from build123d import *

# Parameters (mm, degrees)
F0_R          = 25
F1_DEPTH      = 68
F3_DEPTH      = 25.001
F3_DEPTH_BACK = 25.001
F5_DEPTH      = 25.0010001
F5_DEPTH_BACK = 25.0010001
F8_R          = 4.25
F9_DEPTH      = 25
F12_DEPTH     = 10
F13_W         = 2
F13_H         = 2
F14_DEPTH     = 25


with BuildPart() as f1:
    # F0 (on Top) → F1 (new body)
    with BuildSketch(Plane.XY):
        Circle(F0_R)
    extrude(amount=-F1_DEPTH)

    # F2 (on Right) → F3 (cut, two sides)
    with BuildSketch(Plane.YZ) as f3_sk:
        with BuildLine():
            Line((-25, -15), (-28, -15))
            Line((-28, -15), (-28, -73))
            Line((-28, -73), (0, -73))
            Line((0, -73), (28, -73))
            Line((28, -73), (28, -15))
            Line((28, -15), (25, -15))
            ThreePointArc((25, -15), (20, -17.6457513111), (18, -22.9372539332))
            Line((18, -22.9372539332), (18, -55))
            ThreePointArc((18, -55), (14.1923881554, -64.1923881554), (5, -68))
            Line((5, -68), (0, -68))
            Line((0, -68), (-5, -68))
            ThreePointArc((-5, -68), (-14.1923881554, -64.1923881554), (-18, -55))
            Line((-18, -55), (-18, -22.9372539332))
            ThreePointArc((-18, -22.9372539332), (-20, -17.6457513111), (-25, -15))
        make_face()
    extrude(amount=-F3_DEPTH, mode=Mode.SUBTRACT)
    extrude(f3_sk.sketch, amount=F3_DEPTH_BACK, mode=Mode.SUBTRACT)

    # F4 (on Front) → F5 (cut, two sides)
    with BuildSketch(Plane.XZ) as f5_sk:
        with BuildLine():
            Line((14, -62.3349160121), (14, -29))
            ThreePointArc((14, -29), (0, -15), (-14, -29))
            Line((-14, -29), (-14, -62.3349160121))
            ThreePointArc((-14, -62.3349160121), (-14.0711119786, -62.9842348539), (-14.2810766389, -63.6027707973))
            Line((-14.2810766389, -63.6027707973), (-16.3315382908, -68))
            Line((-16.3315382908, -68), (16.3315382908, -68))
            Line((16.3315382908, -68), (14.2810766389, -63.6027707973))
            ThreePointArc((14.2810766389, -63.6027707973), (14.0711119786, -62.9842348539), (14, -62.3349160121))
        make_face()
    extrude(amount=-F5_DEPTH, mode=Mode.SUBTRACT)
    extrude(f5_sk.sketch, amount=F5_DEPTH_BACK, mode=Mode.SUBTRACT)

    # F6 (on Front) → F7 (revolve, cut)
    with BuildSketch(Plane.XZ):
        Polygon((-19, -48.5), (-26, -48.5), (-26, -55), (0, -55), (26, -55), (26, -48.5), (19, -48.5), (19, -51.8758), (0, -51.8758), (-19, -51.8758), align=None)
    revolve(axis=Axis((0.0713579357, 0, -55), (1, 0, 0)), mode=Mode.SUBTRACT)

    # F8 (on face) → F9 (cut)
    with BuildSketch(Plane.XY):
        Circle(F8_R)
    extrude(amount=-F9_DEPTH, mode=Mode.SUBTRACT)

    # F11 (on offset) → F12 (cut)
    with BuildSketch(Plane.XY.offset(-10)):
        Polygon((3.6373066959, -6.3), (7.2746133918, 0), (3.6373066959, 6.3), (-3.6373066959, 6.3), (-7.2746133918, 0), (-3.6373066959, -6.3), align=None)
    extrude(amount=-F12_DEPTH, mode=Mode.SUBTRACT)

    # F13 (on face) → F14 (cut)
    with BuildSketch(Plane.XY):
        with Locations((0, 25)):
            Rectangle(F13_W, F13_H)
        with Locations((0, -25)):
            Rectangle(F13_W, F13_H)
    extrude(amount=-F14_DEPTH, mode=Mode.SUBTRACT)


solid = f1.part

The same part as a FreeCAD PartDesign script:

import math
import FreeCAD as App
import Part
import Sketcher
from FreeCAD import Vector
Q = App.Units.Quantity


def add_polygon(sketch, points):
    """Adds a closed chain of lines whose ends are joined by coincident constraints."""
    first, n = sketch.GeometryCount, len(points)
    for a, b in zip(points, points[1:] + points[:1]):
        sketch.addGeometry(Part.LineSegment(App.Vector(*a, 0), App.Vector(*b, 0)), False)
    for i in range(n):
        sketch.addConstraint(Sketcher.Constraint("Coincident", first + i, 2, first + (i + 1) % n, 1))

doc = App.newDocument("Part")
body = doc.addObject("PartDesign::Body", "Body")

sketch1 = doc.addObject("Sketcher::SketchObject", "Sketch")
body.addObject(sketch1)
sketch1.AttachmentSupport = (doc.XY_Plane, [""])
sketch1.MapMode = "FlatFace"
sketch1.addGeometry(Part.Circle(Vector(0, 0, 0), Vector(0, 0, 1), 25), False)
sketch1.addConstraint([
    Sketcher.Constraint("Coincident", 0, 3, -1, 1),
    Sketcher.Constraint("Diameter", 0, 50.0),
])
pad1 = doc.addObject("PartDesign::Pad", "Pad")
body.addObject(pad1)
pad1.Profile = sketch1
pad1.Length = 68
pad1.Reversed = True

sketch2 = doc.addObject("Sketcher::SketchObject", "Sketch001")
body.addObject(sketch2)
sketch2.AttachmentSupport = (doc.YZ_Plane, [""])
sketch2.MapMode = "FlatFace"
sketch2.addGeometry([
    Part.LineSegment(Vector(-25, -15, 0), Vector(-28, -15, 0)),
    Part.LineSegment(Vector(-28, -15, 0), Vector(-28, -73, 0)),
    Part.LineSegment(Vector(-28, -73, 0), Vector(28, -73, 0)),
    Part.LineSegment(Vector(28, -73, 0), Vector(28, -15, 0)),
    Part.LineSegment(Vector(28, -15, 0), Vector(25, -15, 0)),
    Part.ArcOfCircle(Part.Circle(Vector(26, -22.9, 0), Vector(0, 0, 1), 8), math.radians(97), math.radians(180)),
    Part.LineSegment(Vector(18, -22.9, 0), Vector(18, -55, 0)),
    Part.ArcOfCircle(Part.Circle(Vector(5, -55, 0), Vector(0, 0, 1), 13), math.radians(-90), math.radians(0)),
    Part.LineSegment(Vector(5, -68, 0), Vector(-5, -68, 0)),
    Part.ArcOfCircle(Part.Circle(Vector(-5, -55, 0), Vector(0, 0, 1), 13), math.radians(180), math.radians(270)),
    Part.LineSegment(Vector(-18, -55, 0), Vector(-18, -22.9, 0)),
    Part.ArcOfCircle(Part.Circle(Vector(-26, -22.9, 0), Vector(0, 0, 1), 8), math.radians(0), math.radians(83)),
], False)
sketch2.addConstraint([
    Sketcher.Constraint("Coincident", 0, 2, 1, 1),
    Sketcher.Constraint("Coincident", 1, 2, 2, 1),
    Sketcher.Constraint("Coincident", 2, 2, 3, 1),
    Sketcher.Constraint("Coincident", 3, 2, 4, 1),
    Sketcher.Constraint("Coincident", 4, 2, 5, 1),
    Sketcher.Constraint("Tangent", 5, 2, 6, 1),
    Sketcher.Constraint("Tangent", 6, 2, 7, 2),
    Sketcher.Constraint("Tangent", 7, 1, 8, 1),
    Sketcher.Constraint("Tangent", 8, 2, 9, 2),
    Sketcher.Constraint("Tangent", 9, 1, 10, 1),
    Sketcher.Constraint("Tangent", 10, 2, 11, 1),
    Sketcher.Constraint("Coincident", 11, 2, 0, 1),
    Sketcher.Constraint("Horizontal", 0),
    Sketcher.Constraint("Vertical", 1),
    Sketcher.Constraint("Horizontal", 2),
    Sketcher.Constraint("Vertical", 3),
    Sketcher.Constraint("Horizontal", 4),
    Sketcher.Constraint("Vertical", 6),
    Sketcher.Constraint("Horizontal", 8),
    Sketcher.Constraint("Vertical", 10),
    Sketcher.Constraint("Equal", 7, 9),
    Sketcher.Constraint("Equal", 5, 11),
    Sketcher.Constraint("Symmetric", 5, 3, 11, 3, -2),
    Sketcher.Constraint("Symmetric", 0, 2, 3, 2, -2),
    Sketcher.Constraint("Radius", 5, 8.0),
    Sketcher.Constraint("Radius", 7, 13.0),
    Sketcher.Constraint("DistanceX", 0, 2, 0, 1, 3.0),
    Sketcher.Constraint("DistanceX", 2, 1, 2, 2, 56.0),
    Sketcher.Constraint("DistanceX", 8, 2, 8, 1, 10.0),
    Sketcher.Constraint("DistanceY", 1, 2, 1, 1, 58.0),
    Sketcher.Constraint("DistanceY", 7, 3, -1, 1, 55.0),
    Sketcher.Constraint("DistanceY", 0, 2, -1, 1, 15.0),
])
pocket1 = doc.addObject("PartDesign::Pocket", "Pocket")
body.addObject(pocket1)
pocket1.Profile = sketch2
pocket1.Type = "ThroughAll"
pocket1.Midplane = True

sketch3 = doc.addObject("Sketcher::SketchObject", "Sketch002")
body.addObject(sketch3)
sketch3.AttachmentSupport = (doc.XZ_Plane, [""])
sketch3.MapMode = "FlatFace"
sketch3.addGeometry([
    Part.LineSegment(Vector(14, -62.3, 0), Vector(14, -29, 0)),
    Part.ArcOfCircle(Part.Circle(Vector(0, -29, 0), Vector(0, 0, 1), 14), math.radians(0), math.radians(180)),
    Part.LineSegment(Vector(-14, -29, 0), Vector(-14, -62.3, 0)),
    Part.ArcOfCircle(Part.Circle(Vector(-17, -62.3, 0), Vector(0, 0, 1), 3), math.radians(-25), math.radians(0)),
    Part.LineSegment(Vector(-14.3, -63.6, 0), Vector(-16.3, -68, 0)),
    Part.LineSegment(Vector(-16.3, -68, 0), Vector(16.3, -68, 0)),
    Part.LineSegment(Vector(16.3, -68, 0), Vector(14.3, -63.6, 0)),
    Part.ArcOfCircle(Part.Circle(Vector(17, -62.3, 0), Vector(0, 0, 1), 3), math.radians(180), math.radians(205)),
], False)
sketch3.addConstraint([
    Sketcher.Constraint("Tangent", 0, 2, 1, 1),
    Sketcher.Constraint("Tangent", 1, 2, 2, 1),
    Sketcher.Constraint("Tangent", 2, 2, 3, 2),
    Sketcher.Constraint("Tangent", 3, 1, 4, 1),
    Sketcher.Constraint("Coincident", 4, 2, 5, 1),
    Sketcher.Constraint("Coincident", 5, 2, 6, 1),
    Sketcher.Constraint("Tangent", 6, 2, 7, 2),
    Sketcher.Constraint("Tangent", 7, 1, 0, 1),
    Sketcher.Constraint("Vertical", 0),
    Sketcher.Constraint("Vertical", 2),
    Sketcher.Constraint("Horizontal", 5),
    Sketcher.Constraint("Equal", 3, 7),
    Sketcher.Constraint("Symmetric", 3, 3, 7, 3, -2),
    Sketcher.Constraint("Horizontal", 3, 1, 6, 2),
    Sketcher.Constraint("Radius", 1, 14.0),
    Sketcher.Constraint("Radius", 3, 3.0),
    Sketcher.Constraint("Angle", 4, Q("-115 deg")),
    Sketcher.Constraint("DistanceY", 1, 3, -1, 1, 29.0),
    Sketcher.Constraint("DistanceY", 4, 2, -1, 1, 68.0),
    Sketcher.Constraint("DistanceX", 5, 1, 5, 2, 32.663077),
])
pocket2 = doc.addObject("PartDesign::Pocket", "Pocket001")
body.addObject(pocket2)
pocket2.Profile = sketch3
pocket2.Type = "ThroughAll"
pocket2.Midplane = True

sketch4 = doc.addObject("Sketcher::SketchObject", "Sketch003")
body.addObject(sketch4)
sketch4.AttachmentSupport = (doc.XZ_Plane, [""])
sketch4.MapMode = "FlatFace"
add_polygon(sketch4, [(-19, -48.5), (-26, -48.5), (-26, -55), (26, -55), (26, -48.5), (19, -48.5), (19, -51.9), (-19, -51.9)])
sketch4.addGeometry(Part.LineSegment(Vector(-26, -55, 0), Vector(26, -55, 0)), True)
sketch4.addConstraint([
    Sketcher.Constraint("Horizontal", 0),
    Sketcher.Constraint("Vertical", 1),
    Sketcher.Constraint("Horizontal", 2),
    Sketcher.Constraint("Vertical", 3),
    Sketcher.Constraint("Horizontal", 4),
    Sketcher.Constraint("Vertical", 5),
    Sketcher.Constraint("Horizontal", 6),
    Sketcher.Constraint("Vertical", 7),
    Sketcher.Constraint("Horizontal", 8),
    Sketcher.Constraint("Coincident", 8, 1, 1, 2),
    Sketcher.Constraint("Symmetric", 0, 2, 3, 2, -2),
    Sketcher.Constraint("Vertical", 3, 2, 8, 2),
    Sketcher.Constraint("Equal", 0, 4),
    Sketcher.Constraint("DistanceX", 0, 2, 0, 1, 7.0),
    Sketcher.Constraint("DistanceX", 2, 1, 2, 2, 52.0),
    Sketcher.Constraint("DistanceY", 1, 2, 1, 1, 6.5),
    Sketcher.Constraint("DistanceY", 1, 2, -1, 1, 55.0),
    Sketcher.Constraint("DistanceY", 5, 2, 5, 1, 3.3758),
])
groove = doc.addObject("PartDesign::Groove", "Groove")
body.addObject(groove)
groove.Profile = sketch4
groove.ReferenceAxis = (sketch4, ["Axis0"])
groove.Angle = 360

sketch5 = doc.addObject("Sketcher::SketchObject", "Sketch004")
body.addObject(sketch5)
sketch5.AttachmentSupport = (doc.XY_Plane, [""])
sketch5.MapMode = "FlatFace"
sketch5.addGeometry(Part.Circle(Vector(0, 0, 0), Vector(0, 0, 1), 4.2), False)
sketch5.addConstraint([
    Sketcher.Constraint("Coincident", 0, 3, -1, 1),
    Sketcher.Constraint("Diameter", 0, 8.5),
])
pocket3 = doc.addObject("PartDesign::Pocket", "Pocket002")
body.addObject(pocket3)
pocket3.Profile = sketch5
pocket3.Length = 25

sketch6 = doc.addObject("Sketcher::SketchObject", "Sketch005")
body.addObject(sketch6)
sketch6.AttachmentSupport = (doc.XY_Plane, [""])
sketch6.MapMode = "FlatFace"
sketch6.AttachmentOffset = App.Placement(Vector(0, 0, -10), App.Rotation())
add_polygon(sketch6, [(4, -6), (7, 0), (4, 6), (-4, 6), (-7, 0), (-4, -6)])
sketch6.addConstraint([
    Sketcher.Constraint("Horizontal", 2),
    Sketcher.Constraint("Horizontal", 5),
    Sketcher.Constraint("Symmetric", 0, 2, 3, 2, -1, 1),
    Sketcher.Constraint("Symmetric", 1, 2, 4, 2, -1, 1),
    Sketcher.Constraint("PointOnObject", 0, 2, -1),
    Sketcher.Constraint("Parallel", 0, 3),
    Sketcher.Constraint("Vertical", 2, 2, 4, 2),
    Sketcher.Constraint("Angle", 0, Q("60 deg")),
    Sketcher.Constraint("DistanceY", -1, 1, 1, 2, 6.3),
    Sketcher.Constraint("DistanceX", 2, 2, 2, 1, 7.274613),
])
pocket4 = doc.addObject("PartDesign::Pocket", "Pocket003")
body.addObject(pocket4)
pocket4.Profile = sketch6
pocket4.Length = 10

sketch7 = doc.addObject("Sketcher::SketchObject", "Sketch006")
body.addObject(sketch7)
sketch7.AttachmentSupport = (doc.XY_Plane, [""])
sketch7.MapMode = "FlatFace"
add_polygon(sketch7, [(-1, 26), (-1, 24), (1, 24), (1, 26)])
add_polygon(sketch7, [(-1, -24), (-1, -26), (1, -26), (1, -24)])
sketch7.addConstraint([
    Sketcher.Constraint("Vertical", 0),
    Sketcher.Constraint("Horizontal", 1),
    Sketcher.Constraint("Vertical", 2),
    Sketcher.Constraint("Horizontal", 3),
    Sketcher.Constraint("Vertical", 4),
    Sketcher.Constraint("Horizontal", 5),
    Sketcher.Constraint("Vertical", 6),
    Sketcher.Constraint("Horizontal", 7),
    Sketcher.Constraint("Symmetric", 2, 2, 4, 2, -1, 1),
    Sketcher.Constraint("Symmetric", 0, 2, 6, 2, -1, 1),
    Sketcher.Constraint("Vertical", 3, 2, 4, 2),
    Sketcher.Constraint("Equal", 7, 0),
    Sketcher.Constraint("DistanceX", 1, 1, 1, 2, 2.0),
    Sketcher.Constraint("DistanceY", -1, 1, 0, 2, 24.0),
])
pocket5 = doc.addObject("PartDesign::Pocket", "Pocket004")
body.addObject(pocket5)
pocket5.Profile = sketch7
pocket5.Length = 25

doc.recompute()
